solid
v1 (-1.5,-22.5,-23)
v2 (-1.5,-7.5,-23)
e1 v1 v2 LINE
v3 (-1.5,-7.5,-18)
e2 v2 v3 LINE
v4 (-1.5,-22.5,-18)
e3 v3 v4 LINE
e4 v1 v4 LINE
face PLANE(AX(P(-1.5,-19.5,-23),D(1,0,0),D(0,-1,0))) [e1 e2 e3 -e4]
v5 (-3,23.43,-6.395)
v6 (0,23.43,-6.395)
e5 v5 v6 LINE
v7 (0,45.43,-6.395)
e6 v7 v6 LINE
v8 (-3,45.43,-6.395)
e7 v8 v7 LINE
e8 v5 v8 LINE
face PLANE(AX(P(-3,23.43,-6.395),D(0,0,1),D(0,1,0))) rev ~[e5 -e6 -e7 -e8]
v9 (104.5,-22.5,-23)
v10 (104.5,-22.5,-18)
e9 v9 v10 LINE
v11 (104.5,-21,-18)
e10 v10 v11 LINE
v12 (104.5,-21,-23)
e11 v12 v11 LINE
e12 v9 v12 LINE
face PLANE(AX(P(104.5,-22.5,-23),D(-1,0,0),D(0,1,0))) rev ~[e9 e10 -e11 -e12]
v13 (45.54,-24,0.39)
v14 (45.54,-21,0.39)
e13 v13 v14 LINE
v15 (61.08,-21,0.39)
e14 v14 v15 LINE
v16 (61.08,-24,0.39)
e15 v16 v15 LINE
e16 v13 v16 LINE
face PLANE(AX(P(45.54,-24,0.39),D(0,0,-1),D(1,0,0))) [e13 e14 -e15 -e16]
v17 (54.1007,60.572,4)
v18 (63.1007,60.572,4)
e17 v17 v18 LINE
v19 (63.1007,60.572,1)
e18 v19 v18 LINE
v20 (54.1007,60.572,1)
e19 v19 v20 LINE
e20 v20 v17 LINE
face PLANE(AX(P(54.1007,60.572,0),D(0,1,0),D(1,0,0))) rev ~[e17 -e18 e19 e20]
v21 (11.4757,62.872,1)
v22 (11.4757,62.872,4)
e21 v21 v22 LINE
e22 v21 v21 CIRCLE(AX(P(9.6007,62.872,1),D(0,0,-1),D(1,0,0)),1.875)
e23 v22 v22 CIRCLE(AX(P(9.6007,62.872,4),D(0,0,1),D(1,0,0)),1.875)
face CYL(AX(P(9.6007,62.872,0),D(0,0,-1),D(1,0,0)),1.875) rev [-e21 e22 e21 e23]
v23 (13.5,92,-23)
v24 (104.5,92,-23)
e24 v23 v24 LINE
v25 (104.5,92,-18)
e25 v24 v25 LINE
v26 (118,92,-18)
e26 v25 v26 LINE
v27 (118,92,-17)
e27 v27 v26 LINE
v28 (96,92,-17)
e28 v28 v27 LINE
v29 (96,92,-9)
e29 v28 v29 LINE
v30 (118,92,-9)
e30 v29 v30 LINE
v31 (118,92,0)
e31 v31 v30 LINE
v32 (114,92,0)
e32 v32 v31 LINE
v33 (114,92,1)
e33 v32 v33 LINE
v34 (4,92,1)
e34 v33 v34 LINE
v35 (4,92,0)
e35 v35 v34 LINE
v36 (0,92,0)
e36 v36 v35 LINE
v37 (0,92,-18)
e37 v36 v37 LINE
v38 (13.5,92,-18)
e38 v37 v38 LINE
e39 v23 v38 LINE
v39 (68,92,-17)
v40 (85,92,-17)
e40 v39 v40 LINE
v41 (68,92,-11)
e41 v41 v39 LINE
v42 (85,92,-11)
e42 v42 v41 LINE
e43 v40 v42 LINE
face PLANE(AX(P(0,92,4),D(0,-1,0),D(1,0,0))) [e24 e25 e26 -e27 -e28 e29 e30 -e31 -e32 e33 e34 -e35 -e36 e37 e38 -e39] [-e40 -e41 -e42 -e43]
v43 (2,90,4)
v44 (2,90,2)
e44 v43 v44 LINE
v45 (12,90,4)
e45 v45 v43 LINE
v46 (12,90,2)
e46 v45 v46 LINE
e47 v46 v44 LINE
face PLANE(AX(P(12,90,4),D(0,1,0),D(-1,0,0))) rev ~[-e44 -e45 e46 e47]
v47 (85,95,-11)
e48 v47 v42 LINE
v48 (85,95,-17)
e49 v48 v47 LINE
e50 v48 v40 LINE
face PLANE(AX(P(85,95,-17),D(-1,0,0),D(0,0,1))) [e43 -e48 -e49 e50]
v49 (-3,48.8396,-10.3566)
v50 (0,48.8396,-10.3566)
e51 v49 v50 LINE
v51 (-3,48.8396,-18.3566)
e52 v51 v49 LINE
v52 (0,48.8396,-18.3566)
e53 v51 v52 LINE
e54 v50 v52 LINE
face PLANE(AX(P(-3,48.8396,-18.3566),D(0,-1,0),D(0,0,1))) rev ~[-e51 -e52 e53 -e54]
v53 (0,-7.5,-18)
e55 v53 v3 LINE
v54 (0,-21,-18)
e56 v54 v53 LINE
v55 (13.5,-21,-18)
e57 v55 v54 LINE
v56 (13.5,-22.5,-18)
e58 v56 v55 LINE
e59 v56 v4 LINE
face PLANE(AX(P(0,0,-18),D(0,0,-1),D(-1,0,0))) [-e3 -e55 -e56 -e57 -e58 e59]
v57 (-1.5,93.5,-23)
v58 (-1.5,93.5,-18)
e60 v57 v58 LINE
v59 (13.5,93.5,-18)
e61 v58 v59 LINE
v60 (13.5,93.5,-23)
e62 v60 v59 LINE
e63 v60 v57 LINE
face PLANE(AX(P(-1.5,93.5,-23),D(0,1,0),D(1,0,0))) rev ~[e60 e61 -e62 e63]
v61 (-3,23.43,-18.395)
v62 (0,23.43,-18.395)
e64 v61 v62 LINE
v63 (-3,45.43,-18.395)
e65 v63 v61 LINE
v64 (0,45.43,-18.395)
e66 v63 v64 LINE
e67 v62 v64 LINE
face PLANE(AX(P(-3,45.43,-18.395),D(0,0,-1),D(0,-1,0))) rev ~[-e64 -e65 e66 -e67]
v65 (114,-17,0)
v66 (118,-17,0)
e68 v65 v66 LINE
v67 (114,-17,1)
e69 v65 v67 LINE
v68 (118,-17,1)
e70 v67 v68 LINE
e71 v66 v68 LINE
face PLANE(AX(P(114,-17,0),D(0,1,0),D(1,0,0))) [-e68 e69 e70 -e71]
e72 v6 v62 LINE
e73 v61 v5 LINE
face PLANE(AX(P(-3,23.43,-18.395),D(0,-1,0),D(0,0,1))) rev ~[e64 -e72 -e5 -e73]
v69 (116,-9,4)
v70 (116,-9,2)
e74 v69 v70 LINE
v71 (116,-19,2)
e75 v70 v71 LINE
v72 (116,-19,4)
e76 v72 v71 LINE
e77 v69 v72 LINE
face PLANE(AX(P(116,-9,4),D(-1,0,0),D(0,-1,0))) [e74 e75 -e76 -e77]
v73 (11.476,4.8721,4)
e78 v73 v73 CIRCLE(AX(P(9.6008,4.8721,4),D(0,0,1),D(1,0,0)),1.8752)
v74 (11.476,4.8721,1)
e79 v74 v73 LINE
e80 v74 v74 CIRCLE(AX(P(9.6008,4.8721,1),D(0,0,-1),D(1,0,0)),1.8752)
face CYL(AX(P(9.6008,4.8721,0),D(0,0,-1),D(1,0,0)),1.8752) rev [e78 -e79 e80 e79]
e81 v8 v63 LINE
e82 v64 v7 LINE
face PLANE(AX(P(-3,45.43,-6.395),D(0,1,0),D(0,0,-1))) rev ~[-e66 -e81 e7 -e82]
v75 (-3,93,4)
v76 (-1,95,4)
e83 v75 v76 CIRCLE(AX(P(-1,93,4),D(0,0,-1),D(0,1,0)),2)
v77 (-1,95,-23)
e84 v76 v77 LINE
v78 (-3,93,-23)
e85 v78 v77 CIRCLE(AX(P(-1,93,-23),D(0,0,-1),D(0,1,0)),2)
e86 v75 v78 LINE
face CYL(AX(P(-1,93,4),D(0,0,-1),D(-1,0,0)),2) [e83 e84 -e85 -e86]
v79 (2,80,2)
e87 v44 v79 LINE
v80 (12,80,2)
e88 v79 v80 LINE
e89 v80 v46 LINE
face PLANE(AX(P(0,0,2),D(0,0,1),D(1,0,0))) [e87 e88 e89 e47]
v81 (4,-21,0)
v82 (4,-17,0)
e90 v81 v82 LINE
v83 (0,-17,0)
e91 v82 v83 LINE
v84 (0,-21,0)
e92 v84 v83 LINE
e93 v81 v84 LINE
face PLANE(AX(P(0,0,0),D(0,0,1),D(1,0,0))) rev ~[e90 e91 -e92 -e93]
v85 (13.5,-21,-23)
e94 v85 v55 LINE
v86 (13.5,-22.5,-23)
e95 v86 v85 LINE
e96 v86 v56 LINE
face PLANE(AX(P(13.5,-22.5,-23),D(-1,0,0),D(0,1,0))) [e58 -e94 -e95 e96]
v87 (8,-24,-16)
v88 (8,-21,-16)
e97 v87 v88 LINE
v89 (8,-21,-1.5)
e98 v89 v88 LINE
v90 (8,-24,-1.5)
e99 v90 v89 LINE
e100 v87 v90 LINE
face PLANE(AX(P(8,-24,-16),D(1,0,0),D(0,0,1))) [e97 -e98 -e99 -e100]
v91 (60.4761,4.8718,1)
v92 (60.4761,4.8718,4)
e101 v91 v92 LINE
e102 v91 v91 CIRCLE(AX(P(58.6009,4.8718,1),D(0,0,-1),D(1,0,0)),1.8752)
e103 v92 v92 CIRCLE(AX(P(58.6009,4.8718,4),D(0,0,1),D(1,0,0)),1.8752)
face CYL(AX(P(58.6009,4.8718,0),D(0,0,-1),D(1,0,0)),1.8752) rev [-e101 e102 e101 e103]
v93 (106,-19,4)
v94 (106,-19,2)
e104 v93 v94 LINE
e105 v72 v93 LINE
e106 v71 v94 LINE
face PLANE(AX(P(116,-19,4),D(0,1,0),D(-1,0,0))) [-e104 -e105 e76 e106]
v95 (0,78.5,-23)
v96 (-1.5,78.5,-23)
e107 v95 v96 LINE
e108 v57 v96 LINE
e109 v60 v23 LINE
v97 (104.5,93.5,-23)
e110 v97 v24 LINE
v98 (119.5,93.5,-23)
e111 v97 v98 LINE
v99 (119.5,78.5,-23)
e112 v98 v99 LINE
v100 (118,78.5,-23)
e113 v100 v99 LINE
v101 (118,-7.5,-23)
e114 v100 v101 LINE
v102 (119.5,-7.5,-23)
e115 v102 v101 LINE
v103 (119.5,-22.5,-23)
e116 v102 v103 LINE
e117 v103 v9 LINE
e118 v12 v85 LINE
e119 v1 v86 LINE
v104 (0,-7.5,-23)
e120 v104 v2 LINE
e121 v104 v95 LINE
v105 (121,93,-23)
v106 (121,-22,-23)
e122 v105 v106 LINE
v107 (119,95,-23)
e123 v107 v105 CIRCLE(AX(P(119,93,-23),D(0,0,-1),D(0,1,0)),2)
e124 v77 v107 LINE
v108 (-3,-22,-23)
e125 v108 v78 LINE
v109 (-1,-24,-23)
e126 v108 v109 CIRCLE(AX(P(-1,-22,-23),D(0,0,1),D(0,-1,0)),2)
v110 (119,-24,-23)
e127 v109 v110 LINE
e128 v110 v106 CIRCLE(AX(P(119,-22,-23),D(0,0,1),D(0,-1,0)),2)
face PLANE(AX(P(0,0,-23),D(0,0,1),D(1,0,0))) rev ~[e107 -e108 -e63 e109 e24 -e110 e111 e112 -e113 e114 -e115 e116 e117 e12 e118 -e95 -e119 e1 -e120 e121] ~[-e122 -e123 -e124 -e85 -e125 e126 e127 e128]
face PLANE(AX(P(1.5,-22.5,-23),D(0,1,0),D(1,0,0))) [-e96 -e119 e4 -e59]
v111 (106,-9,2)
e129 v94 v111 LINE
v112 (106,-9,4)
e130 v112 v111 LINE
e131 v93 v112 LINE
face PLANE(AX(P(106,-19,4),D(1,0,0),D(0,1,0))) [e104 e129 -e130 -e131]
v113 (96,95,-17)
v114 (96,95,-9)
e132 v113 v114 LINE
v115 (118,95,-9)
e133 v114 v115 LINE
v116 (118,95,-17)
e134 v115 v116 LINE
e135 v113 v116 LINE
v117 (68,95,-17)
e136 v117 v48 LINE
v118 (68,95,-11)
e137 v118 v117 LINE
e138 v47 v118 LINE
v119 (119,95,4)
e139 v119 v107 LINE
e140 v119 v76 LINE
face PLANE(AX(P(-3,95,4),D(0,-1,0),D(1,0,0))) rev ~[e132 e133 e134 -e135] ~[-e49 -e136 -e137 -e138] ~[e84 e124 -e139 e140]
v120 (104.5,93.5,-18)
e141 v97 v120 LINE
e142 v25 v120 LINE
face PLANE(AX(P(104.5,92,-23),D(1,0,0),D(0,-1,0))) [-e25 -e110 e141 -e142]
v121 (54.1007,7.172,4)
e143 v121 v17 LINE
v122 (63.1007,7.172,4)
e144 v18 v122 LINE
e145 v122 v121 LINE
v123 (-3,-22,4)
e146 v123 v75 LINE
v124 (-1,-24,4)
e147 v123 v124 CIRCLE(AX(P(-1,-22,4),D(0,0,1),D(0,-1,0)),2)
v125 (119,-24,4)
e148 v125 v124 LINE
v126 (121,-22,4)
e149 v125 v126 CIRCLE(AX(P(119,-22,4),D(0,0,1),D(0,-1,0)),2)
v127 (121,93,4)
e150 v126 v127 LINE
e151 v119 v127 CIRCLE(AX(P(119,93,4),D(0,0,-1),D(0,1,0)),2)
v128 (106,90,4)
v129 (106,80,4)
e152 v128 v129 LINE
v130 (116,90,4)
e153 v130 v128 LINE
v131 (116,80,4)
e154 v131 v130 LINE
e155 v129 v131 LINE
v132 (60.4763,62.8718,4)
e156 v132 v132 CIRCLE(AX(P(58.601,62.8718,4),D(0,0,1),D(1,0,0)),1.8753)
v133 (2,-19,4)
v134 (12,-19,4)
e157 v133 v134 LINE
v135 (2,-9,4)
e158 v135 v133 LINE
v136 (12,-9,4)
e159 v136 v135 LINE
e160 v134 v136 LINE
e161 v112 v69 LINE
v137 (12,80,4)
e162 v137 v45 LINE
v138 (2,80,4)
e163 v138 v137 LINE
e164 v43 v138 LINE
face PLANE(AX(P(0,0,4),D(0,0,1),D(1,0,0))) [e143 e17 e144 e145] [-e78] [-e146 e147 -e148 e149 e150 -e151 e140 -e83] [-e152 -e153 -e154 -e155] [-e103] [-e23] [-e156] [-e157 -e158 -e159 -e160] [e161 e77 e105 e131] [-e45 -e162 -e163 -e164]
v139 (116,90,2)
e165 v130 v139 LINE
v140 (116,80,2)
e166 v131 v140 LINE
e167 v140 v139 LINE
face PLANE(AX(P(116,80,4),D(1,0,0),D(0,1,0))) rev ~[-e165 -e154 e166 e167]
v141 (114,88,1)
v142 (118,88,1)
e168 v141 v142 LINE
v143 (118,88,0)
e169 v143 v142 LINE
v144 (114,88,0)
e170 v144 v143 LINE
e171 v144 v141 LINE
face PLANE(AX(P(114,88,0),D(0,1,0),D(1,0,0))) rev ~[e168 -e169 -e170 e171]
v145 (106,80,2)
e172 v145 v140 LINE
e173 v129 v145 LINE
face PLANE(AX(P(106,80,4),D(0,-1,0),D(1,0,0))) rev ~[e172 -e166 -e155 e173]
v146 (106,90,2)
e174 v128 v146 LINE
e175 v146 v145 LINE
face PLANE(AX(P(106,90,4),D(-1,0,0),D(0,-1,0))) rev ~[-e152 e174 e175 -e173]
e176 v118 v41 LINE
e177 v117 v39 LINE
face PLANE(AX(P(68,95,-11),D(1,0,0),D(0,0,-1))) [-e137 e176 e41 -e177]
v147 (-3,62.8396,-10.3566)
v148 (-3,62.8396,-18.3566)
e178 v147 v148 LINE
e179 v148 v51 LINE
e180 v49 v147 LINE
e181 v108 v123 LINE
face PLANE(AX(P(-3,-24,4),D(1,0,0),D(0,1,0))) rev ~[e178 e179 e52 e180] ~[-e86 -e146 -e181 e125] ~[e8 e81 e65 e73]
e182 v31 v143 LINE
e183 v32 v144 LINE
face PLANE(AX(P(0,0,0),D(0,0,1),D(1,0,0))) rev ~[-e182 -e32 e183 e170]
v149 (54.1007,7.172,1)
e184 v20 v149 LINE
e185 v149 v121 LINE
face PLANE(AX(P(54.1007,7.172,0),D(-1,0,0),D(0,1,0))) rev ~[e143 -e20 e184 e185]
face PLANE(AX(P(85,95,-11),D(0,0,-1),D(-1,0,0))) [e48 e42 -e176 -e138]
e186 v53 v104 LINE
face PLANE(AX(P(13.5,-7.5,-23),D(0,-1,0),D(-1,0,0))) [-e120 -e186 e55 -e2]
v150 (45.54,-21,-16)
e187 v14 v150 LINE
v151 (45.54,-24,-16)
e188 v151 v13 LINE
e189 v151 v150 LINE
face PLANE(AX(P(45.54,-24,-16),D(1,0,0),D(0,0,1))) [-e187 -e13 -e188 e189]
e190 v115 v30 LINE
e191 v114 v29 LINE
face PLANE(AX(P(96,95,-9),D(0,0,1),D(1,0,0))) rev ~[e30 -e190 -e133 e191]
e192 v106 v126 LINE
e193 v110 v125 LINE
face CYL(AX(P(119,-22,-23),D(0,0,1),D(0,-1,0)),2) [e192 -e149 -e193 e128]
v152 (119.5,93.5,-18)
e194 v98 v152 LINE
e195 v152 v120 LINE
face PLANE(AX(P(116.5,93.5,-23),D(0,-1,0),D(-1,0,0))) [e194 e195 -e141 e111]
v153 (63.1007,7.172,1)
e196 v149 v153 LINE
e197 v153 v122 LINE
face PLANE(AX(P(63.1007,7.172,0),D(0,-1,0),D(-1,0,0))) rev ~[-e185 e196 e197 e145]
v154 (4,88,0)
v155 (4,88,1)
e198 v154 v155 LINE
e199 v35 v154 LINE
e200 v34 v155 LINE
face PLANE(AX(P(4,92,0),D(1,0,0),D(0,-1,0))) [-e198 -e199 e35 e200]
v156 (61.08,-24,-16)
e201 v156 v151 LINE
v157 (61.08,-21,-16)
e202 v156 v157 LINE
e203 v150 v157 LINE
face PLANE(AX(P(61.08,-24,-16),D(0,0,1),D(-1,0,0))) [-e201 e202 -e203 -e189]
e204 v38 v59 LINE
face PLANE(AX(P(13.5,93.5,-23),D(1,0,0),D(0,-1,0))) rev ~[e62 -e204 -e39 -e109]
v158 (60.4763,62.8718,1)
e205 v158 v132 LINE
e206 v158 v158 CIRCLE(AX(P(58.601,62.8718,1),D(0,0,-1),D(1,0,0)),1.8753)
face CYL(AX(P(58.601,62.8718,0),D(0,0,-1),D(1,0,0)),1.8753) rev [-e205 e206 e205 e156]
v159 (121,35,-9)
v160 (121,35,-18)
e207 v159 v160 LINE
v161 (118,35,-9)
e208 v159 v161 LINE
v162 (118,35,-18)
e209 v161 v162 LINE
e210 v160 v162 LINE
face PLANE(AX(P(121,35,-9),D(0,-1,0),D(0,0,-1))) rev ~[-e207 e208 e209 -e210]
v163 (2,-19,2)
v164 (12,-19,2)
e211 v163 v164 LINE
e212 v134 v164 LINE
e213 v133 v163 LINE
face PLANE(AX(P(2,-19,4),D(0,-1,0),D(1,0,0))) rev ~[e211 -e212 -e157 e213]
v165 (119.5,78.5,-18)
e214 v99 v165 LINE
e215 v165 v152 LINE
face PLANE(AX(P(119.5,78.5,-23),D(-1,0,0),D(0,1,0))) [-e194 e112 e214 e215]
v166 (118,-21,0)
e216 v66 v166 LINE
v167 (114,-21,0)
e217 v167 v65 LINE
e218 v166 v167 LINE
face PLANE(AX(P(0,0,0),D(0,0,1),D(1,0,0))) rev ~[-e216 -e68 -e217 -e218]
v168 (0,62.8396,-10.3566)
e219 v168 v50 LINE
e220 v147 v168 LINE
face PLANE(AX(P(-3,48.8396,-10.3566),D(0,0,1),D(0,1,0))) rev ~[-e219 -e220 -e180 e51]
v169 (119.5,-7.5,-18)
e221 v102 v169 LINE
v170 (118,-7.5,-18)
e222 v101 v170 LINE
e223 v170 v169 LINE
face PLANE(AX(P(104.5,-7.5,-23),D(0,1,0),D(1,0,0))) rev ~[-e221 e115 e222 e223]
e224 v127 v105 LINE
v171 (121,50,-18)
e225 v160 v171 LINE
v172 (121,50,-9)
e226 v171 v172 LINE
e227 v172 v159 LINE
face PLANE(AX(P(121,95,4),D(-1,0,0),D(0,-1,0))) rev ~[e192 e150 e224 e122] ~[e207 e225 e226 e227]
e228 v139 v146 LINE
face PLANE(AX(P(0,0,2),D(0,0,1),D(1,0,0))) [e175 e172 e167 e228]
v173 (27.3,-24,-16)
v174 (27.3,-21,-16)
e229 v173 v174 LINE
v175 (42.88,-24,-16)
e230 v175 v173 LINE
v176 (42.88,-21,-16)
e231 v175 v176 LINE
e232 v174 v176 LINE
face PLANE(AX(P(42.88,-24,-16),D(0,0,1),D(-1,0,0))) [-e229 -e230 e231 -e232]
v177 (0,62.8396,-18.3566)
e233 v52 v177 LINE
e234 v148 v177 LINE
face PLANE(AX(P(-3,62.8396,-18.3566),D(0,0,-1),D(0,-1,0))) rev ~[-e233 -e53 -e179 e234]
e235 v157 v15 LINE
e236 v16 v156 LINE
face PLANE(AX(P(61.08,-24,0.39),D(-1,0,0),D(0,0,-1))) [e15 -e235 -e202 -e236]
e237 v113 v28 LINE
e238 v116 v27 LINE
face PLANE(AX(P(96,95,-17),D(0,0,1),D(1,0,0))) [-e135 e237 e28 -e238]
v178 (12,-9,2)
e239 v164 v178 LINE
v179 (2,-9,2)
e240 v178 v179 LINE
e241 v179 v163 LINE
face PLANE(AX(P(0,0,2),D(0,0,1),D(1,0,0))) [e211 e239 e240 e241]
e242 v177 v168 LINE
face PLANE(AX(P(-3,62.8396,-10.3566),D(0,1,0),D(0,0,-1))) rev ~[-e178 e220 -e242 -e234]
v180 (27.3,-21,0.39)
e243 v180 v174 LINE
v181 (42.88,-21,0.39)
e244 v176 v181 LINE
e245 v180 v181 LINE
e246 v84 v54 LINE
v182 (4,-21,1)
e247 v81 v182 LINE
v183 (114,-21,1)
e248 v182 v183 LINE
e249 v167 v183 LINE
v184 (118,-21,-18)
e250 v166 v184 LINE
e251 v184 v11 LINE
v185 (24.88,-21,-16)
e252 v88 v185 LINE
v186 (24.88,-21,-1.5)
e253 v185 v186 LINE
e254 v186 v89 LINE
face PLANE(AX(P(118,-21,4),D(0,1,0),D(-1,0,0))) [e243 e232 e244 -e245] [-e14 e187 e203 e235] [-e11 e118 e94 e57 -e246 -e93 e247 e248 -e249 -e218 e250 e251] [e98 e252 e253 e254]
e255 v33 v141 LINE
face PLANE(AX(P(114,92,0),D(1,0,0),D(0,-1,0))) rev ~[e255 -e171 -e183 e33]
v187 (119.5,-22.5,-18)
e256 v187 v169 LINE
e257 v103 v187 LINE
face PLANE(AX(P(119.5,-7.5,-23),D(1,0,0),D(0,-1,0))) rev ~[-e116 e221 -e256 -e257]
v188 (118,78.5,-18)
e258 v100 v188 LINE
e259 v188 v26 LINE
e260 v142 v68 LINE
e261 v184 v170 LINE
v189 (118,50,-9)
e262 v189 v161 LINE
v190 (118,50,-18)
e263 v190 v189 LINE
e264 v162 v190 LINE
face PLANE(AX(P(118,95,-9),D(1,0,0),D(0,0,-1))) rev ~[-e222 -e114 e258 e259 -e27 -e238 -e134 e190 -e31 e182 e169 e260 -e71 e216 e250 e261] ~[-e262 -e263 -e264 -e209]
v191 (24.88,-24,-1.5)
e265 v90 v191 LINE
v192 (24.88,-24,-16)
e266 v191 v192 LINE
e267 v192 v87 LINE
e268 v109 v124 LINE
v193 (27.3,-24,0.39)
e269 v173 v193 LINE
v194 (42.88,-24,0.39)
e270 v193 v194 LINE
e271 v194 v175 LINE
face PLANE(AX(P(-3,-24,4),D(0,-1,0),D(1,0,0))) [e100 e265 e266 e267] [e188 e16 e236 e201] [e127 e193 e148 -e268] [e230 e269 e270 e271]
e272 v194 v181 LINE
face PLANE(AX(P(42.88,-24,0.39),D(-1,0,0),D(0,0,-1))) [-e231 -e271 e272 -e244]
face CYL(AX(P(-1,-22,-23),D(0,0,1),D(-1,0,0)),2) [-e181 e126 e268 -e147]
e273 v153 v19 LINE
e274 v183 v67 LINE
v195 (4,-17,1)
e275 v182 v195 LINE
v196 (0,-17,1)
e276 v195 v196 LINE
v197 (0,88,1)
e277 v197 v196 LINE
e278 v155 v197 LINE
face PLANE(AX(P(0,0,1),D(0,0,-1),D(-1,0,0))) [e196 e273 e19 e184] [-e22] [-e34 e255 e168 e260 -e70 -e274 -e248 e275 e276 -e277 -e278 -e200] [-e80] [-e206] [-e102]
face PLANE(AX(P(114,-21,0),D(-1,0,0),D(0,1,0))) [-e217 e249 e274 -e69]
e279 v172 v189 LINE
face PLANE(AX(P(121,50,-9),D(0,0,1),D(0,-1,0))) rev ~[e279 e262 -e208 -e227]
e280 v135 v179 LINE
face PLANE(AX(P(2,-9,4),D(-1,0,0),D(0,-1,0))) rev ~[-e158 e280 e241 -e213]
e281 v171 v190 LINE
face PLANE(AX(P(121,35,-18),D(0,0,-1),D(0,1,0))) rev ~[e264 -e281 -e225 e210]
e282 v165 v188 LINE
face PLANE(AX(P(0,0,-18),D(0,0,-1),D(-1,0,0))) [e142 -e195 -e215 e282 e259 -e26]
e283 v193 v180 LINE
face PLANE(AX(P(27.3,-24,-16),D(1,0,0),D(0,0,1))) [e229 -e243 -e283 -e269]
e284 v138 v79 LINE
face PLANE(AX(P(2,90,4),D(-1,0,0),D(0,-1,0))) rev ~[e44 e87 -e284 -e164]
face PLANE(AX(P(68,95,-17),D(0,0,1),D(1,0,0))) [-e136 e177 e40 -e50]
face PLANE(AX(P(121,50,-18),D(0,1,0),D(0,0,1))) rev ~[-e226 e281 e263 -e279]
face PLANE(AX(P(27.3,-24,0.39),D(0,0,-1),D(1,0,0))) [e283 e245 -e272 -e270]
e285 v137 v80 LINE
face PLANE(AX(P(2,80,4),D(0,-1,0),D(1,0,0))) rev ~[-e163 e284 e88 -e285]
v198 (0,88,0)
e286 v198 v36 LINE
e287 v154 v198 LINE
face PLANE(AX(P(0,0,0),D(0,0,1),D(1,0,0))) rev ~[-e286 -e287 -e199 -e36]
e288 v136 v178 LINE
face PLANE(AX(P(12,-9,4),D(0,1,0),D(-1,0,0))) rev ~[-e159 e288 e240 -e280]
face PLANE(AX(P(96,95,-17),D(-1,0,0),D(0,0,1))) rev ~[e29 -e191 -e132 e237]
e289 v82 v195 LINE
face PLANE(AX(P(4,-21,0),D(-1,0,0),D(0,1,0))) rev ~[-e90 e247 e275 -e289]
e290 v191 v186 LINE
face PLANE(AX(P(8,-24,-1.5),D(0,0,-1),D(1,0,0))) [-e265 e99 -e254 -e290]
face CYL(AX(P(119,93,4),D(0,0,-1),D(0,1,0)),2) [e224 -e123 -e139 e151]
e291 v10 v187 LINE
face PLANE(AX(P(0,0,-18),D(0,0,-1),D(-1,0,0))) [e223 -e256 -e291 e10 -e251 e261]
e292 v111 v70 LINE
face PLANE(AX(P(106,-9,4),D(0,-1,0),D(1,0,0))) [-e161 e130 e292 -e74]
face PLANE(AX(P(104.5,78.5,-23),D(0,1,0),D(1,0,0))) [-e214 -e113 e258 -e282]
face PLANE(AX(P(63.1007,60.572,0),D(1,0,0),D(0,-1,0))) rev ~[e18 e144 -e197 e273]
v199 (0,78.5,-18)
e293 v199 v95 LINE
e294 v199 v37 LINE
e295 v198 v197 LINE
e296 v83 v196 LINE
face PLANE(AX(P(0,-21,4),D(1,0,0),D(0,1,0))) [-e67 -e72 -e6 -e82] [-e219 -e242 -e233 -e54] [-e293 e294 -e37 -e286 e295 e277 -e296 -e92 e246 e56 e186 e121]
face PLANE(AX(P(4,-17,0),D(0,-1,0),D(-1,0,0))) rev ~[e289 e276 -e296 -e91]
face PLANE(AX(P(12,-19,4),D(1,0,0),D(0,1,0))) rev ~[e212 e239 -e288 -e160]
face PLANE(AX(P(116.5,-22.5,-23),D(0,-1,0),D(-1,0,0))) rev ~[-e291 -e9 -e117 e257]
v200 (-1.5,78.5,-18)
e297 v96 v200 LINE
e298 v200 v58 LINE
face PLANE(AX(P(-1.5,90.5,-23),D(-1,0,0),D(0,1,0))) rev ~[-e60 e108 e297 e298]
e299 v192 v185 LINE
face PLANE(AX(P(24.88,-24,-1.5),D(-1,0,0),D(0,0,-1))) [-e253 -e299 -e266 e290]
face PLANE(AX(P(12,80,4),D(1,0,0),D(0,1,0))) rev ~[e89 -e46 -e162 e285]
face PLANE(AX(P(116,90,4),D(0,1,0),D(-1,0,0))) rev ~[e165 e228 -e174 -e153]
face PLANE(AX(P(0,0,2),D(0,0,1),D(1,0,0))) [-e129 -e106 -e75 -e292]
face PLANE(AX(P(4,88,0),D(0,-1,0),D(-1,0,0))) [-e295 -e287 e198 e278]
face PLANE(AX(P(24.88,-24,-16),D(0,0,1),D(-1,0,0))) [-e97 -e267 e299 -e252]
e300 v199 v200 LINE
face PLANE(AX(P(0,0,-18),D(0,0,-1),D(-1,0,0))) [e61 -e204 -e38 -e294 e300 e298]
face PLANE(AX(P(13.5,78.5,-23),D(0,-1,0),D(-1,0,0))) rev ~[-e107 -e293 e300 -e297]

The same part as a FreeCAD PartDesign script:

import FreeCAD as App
import Part
import Sketcher


def edges_at(feature, points):
    """Names of the edges that pass closest to the given points."""
    edges = feature.Shape.Edges
    near = lambda p: min(range(len(edges)), key=lambda i: edges[i].distToShape(Part.Vertex(*p))[0])
    return sorted({f"Edge{near(p) + 1}" for p in points})


def add_polygon(sketch, points):
    """Adds a closed chain of lines whose ends are joined by coincident constraints."""
    first, n = sketch.GeometryCount, len(points)
    for a, b in zip(points, points[1:] + points[:1]):
        sketch.addGeometry(Part.LineSegment(App.Vector(*a, 0), App.Vector(*b, 0)), False)
    for i in range(n):
        sketch.addConstraint(Sketcher.Constraint("Coincident", first + i, 2, first + (i + 1) % n, 1))

doc = App.newDocument("Part")
body = doc.addObject("PartDesign::Body", "Body")

# Sketch on XY plane
sketch1 = body.newObject("Sketcher::SketchObject", "Sketch")
sketch1.AttachmentSupport = (doc.getObject("XY_Plane"), [""])
sketch1.MapMode = "FlatFace"
add_polygon(sketch1, [(-3, -24), (121, -24), (121, 95), (-3, 95)])  # lines 0-3
sketch1.addGeometry(Part.Circle(App.Vector(58.601, 62.8718, 0), App.Vector(0, 0, 1), 1.8753), False)  # 4
add_polygon(sketch1, [(54.1007, 60.572), (63.1007, 60.572), (63.1007, 7.172), (54.1007, 7.172)])  # lines 5-8
sketch1.addGeometry(Part.Circle(App.Vector(9.6007, 62.872, 0), App.Vector(0, 0, 1), 1.875), False)  # 9
sketch1.addGeometry(Part.Circle(App.Vector(9.6008, 4.8721, 0), App.Vector(0, 0, 1), 1.8752), False)  # 10
sketch1.addGeometry(Part.Circle(App.Vector(58.6009, 4.8718, 0), App.Vector(0, 0, 1), 1.8752), False)  # 11
sketch1.addConstraint(Sketcher.Constraint("Horizontal", 0))
sketch1.addConstraint(Sketcher.Constraint("Vertical", 1))
sketch1.addConstraint(Sketcher.Constraint("Horizontal", 2))
sketch1.addConstraint(Sketcher.Constraint("Vertical", 3))
sketch1.addConstraint(Sketcher.Constraint("Horizontal", 5))
sketch1.addConstraint(Sketcher.Constraint("Vertical", 6))
sketch1.addConstraint(Sketcher.Constraint("Horizontal", 7))
sketch1.addConstraint(Sketcher.Constraint("Vertical", 8))
sketch1.addConstraint(Sketcher.Constraint("Equal", 9, 10))
sketch1.addConstraint(Sketcher.Constraint("Equal", 10, 11))
sketch1.addConstraint(Sketcher.Constraint("Horizontal", 4, 3, 9, 3))
sketch1.addConstraint(Sketcher.Constraint("Vertical", 9, 3, 10, 3))
sketch1.addConstraint(Sketcher.Constraint("Vertical", 4, 3, 11, 3))
sketch1.addConstraint(Sketcher.Constraint("DistanceX", 2, 2, -1, 1, 3.0))
sketch1.addConstraint(Sketcher.Constraint("Diameter", 9, 3.75))
sketch1.addConstraint(Sketcher.Constraint("DistanceX", 0, 1, 0, 2, 124.0))
sketch1.addConstraint(Sketcher.Constraint("DistanceX", 5, 1, 5, 2, 9.0))
sketch1.addConstraint(Sketcher.Constraint("DistanceY", 1, 1, 1, 2, 119.0))
sketch1.addConstraint(Sketcher.Constraint("DistanceY", 6, 2, 6, 1, 53.4))
sketch1.addConstraint(Sketcher.Constraint("DistanceY", 0, 2, -1, 1, 24.0))
sketch1.addConstraint(Sketcher.Constraint("DistanceY", 10, 3, 9, 3, 58.0))
sketch1.addConstraint(Sketcher.Constraint("DistanceX", 10, 3, 11, 3, 49.0))
sketch1.addConstraint(Sketcher.Constraint("DistanceY", 11, 3, 4, 3, 58.0))
sketch1.addConstraint(Sketcher.Constraint("Diameter", 4, 3.7506))
sketch1.addConstraint(Sketcher.Constraint("DistanceX", 9, 3, 5, 2, 53.5))
sketch1.addConstraint(Sketcher.Constraint("DistanceY", 5, 2, 9, 3, 2.3))
sketch1.addConstraint(Sketcher.Constraint("DistanceX", -1, 1, 4, 3, 58.601))
sketch1.addConstraint(Sketcher.Constraint("DistanceY", -1, 1, 9, 3, 62.872))
pad1 = body.newObject("PartDesign::Pad", "Pad")
pad1.Profile = sketch1
pad1.Length = 4

# Sketch on XY plane
sketch2 = body.newObject("Sketcher::SketchObject", "Sketch001")
sketch2.AttachmentSupport = (doc.getObject("XY_Plane"), [""])
sketch2.MapMode = "FlatFace"
sketch2.AttachmentOffset = App.Placement(App.Vector(0, 0, 4), App.Rotation())
add_polygon(sketch2, [(-3, 95), (-3, -24), (121, -24), (121, 95)])  # lines 0-3
add_polygon(sketch2, [(0, -21), (0, 92), (118, 92), (118, -21)])  # lines 4-7
sketch2.addConstraint(Sketcher.Constraint("Vertical", 0))
sketch2.addConstraint(Sketcher.Constraint("Horizontal", 1))
sketch2.addConstraint(Sketcher.Constraint("Vertical", 2))
sketch2.addConstraint(Sketcher.Constraint("Horizontal", 3))
sketch2.addConstraint(Sketcher.Constraint("Vertical", 4))
sketch2.addConstraint(Sketcher.Constraint("Horizontal", 5))
sketch2.addConstraint(Sketcher.Constraint("Vertical", 6))
sketch2.addConstraint(Sketcher.Constraint("Horizontal", 7))
sketch2.addConstraint(Sketcher.Constraint("PointOnObject", 4, 2, -2))
sketch2.addConstraint(Sketcher.Constraint("DistanceX", 0, 2, -1, 1, 3.0))
sketch2.addConstraint(Sketcher.Constraint("DistanceY", 4, 2, 3, 2, 3.0))
sketch2.addConstraint(Sketcher.Constraint("DistanceX", 5, 2, 2, 2, 3.0))
sketch2.addConstraint(Sketcher.Constraint("DistanceY", 1, 2, 6, 2, 3.0))
sketch2.addConstraint(Sketcher.Constraint("DistanceX", 1, 1, 1, 2, 124.0))
sketch2.addConstraint(Sketcher.Constraint("DistanceY", 0, 2, 0, 1, 119.0))
sketch2.addConstraint(Sketcher.Constraint("DistanceY", 0, 2, -1, 1, 24.0))
pad2 = body.newObject("PartDesign::Pad", "Pad001")
pad2.Profile = sketch2
pad2.Length = 27
pad2.Reversed = True

# Sketch on XZ plane
sketch3 = body.newObject("Sketcher::SketchObject", "Sketch002")
sketch3.AttachmentSupport = (doc.getObject("XZ_Plane"), [""])
sketch3.MapMode = "FlatFace"
sketch3.AttachmentOffset = App.Placement(App.Vector(0, 0, 24), App.Rotation())
add_polygon(sketch3, [(45.54, -16), (61.08, -16), (61.08, 0.39), (45.54, 0.39)])  # lines 0-3
add_polygon(sketch3, [(27.3, -16), (42.88, -16), (42.88, 0.39), (27.3, 0.39)])  # lines 4-7
add_polygon(sketch3, [(8, -16), (24.88, -16), (24.88, -1.5), (8, -1.5)])  # lines 8-11
sketch3.addConstraint(Sketcher.Constraint("Horizontal", 0))
sketch3.addConstraint(Sketcher.Constraint("Vertical", 1))
sketch3.addConstraint(Sketcher.Constraint("Horizontal", 2))
sketch3.addConstraint(Sketcher.Constraint("Vertical", 3))
sketch3.addConstraint(Sketcher.Constraint("Horizontal", 4))
sketch3.addConstraint(Sketcher.Constraint("Vertical", 5))
sketch3.addConstraint(Sketcher.Constraint("Horizontal", 6))
sketch3.addConstraint(Sketcher.Constraint("Vertical", 7))
sketch3.addConstraint(Sketcher.Constraint("Horizontal", 8))
sketch3.addConstraint(Sketcher.Constraint("Vertical", 9))
sketch3.addConstraint(Sketcher.Constraint("Horizontal", 10))
sketch3.addConstraint(Sketcher.Constraint("Vertical", 11))
sketch3.addConstraint(Sketcher.Constraint("Horizontal", 3, 2, 4, 2))
sketch3.addConstraint(Sketcher.Constraint("Horizontal", 2, 2, 5, 2))
sketch3.addConstraint(Sketcher.Constraint("Horizontal", 7, 2, 8, 2))
sketch3.addConstraint(Sketcher.Constraint("DistanceY", 9, 1, 9, 2, 14.5))
sketch3.addConstraint(Sketcher.Constraint("DistanceY", 0, 2, -1, 1, 16.0))
sketch3.addConstraint(Sketcher.Constraint("DistanceX", -1, 1, 10, 2, 8.0))
sketch3.addConstraint(Sketcher.Constraint("DistanceX", 8, 2, 4, 2, 18.0))
sketch3.addConstraint(Sketcher.Constraint("DistanceX", 0, 1, 0, 2, 15.54))
sketch3.addConstraint(Sketcher.Constraint("DistanceX", 4, 1, 4, 2, 15.58))
sketch3.addConstraint(Sketcher.Constraint("DistanceX", 8, 1, 8, 2, 16.88))
sketch3.addConstraint(Sketcher.Constraint("DistanceY", 1, 1, 1, 2, 16.39))
sketch3.addConstraint(Sketcher.Constraint("DistanceX", 4, 2, 0, 2, 18.2))
pocket1 = body.newObject("PartDesign::Pocket", "Pocket")
pocket1.Profile = sketch3
pocket1.Length = 27

# Sketch on YZ plane
sketch4 = body.newObject("Sketcher::SketchObject", "Sketch003")
sketch4.AttachmentSupport = (doc.getObject("YZ_Plane"), [""])
sketch4.MapMode = "FlatFace"
sketch4.AttachmentOffset = App.Placement(App.Vector(0, 0, -3), App.Rotation())
add_polygon(sketch4, [(45.43, -18.395), (23.43, -18.395), (23.43, -6.395), (45.43, -6.395)])  # lines 0-3
add_polygon(sketch4, [(62.8396, -18.3566), (48.8396, -18.3566), (48.8396, -10.3566), (62.8396, -10.3566)])  # lines 4-7
sketch4.addConstraint(Sketcher.Constraint("Horizontal", 0))
sketch4.addConstraint(Sketcher.Constraint("Vertical", 1))
sketch4.addConstraint(Sketcher.Constraint("Horizontal", 2))
sketch4.addConstraint(Sketcher.Constraint("Vertical", 3))
sketch4.addConstraint(Sketcher.Constraint("Horizontal", 4))
sketch4.addConstraint(Sketcher.Constraint("Vertical", 5))
sketch4.addConstraint(Sketcher.Constraint("Horizontal", 6))
sketch4.addConstraint(Sketcher.Constraint("Vertical", 7))
sketch4.addConstraint(Sketcher.Constraint("DistanceX", 0, 2, 0, 1, 22.0))
sketch4.addConstraint(Sketcher.Constraint("DistanceX", 4, 2, 4, 1, 14.0))
sketch4.addConstraint(Sketcher.Constraint("DistanceY", 1, 1, 1, 2, 12.0))
sketch4.addConstraint(Sketcher.Constraint("DistanceY", 5, 1, 5, 2, 8.0))
sketch4.addConstraint(Sketcher.Constraint("DistanceX", -1, 1, 0, 2, 23.43))
sketch4.addConstraint(Sketcher.Constraint("DistanceY", 0, 2, -1, 1, 18.395))
sketch4.addConstraint(Sketcher.Constraint("DistanceX", -1, 1, 4, 2, 48.8396))
sketch4.addConstraint(Sketcher.Constraint("DistanceY", 4, 2, -1, 1, 18.3566))
pocket2 = body.newObject("PartDesign::Pocket", "Pocket001")
pocket2.Profile = sketch4
pocket2.Length = 27
pocket2.Reversed = True

# Sketch on XZ plane
sketch5 = body.newObject("Sketcher::SketchObject", "Sketch004")
sketch5.AttachmentSupport = (doc.getObject("XZ_Plane"), [""])
sketch5.MapMode = "FlatFace"
sketch5.AttachmentOffset = App.Placement(App.Vector(0, 0, -95), App.Rotation())
add_polygon(sketch5, [(96, -9), (118, -9), (118, -17), (96, -17)])  # lines 0-3
add_polygon(sketch5, [(68, -17), (68, -11), (85, -11), (85, -17)])  # lines 4-7
sketch5.addConstraint(Sketcher.Constraint("Horizontal", 0))
sketch5.addConstraint(Sketcher.Constraint("Vertical", 1))
sketch5.addConstraint(Sketcher.Constraint("Horizontal", 2))
sketch5.addConstraint(Sketcher.Constraint("Vertical", 3))
sketch5.addConstraint(Sketcher.Constraint("Vertical", 4))
sketch5.addConstraint(Sketcher.Constraint("Horizontal", 5))
sketch5.addConstraint(Sketcher.Constraint("Vertical", 6))
sketch5.addConstraint(Sketcher.Constraint("Horizontal", 7))
sketch5.addConstraint(Sketcher.Constraint("Horizontal", 2, 2, 6, 2))
sketch5.addConstraint(Sketcher.Constraint("DistanceX", 0, 1, 0, 2, 22.0))
sketch5.addConstraint(Sketcher.Constraint("DistanceX", 5, 1, 5, 2, 17.0))
sketch5.addConstraint(Sketcher.Constraint("DistanceY", 1, 2, 1, 1, 8.0))
sketch5.addConstraint(Sketcher.Constraint("DistanceY", 4, 1, 4, 2, 6.0))
sketch5.addConstraint(Sketcher.Constraint("DistanceY", 1, 2, -1, 1, 17.0))
sketch5.addConstraint(Sketcher.Constraint("DistanceX", 4, 2, 0, 2, 50.0))
sketch5.addConstraint(Sketcher.Constraint("DistanceX", -1, 1, 0, 2, 118.0))
pocket3 = body.newObject("PartDesign::Pocket", "Pocket002")
pocket3.Profile = sketch5
pocket3.Length = 3
pocket3.Reversed = True

# Sketch on YZ plane
sketch6 = body.newObject("Sketcher::SketchObject", "Sketch005")
sketch6.AttachmentSupport = (doc.getObject("YZ_Plane"), [""])
sketch6.MapMode = "FlatFace"
sketch6.AttachmentOffset = App.Placement(App.Vector(0, 0, 121), App.Rotation())
add_polygon(sketch6, [(35, -18), (50, -18), (50, -9), (35, -9)])  # lines 0-3
sketch6.addConstraint(Sketcher.Constraint("Horizontal", 0))
sketch6.addConstraint(Sketcher.Constraint("Vertical", 1))
sketch6.addConstraint(Sketcher.Constraint("Horizontal", 2))
sketch6.addConstraint(Sketcher.Constraint("Vertical", 3))
sketch6.addConstraint(Sketcher.Constraint("DistanceY", 1, 1, 1, 2, 9.0))
sketch6.addConstraint(Sketcher.Constraint("DistanceY", 1, 2, -1, 1, 9.0))
sketch6.addConstraint(Sketcher.Constraint("DistanceX", 0, 1, 0, 2, 15.0))
sketch6.addConstraint(Sketcher.Constraint("DistanceX", -1, 1, 0, 2, 50.0))
pocket4 = body.newObject("PartDesign::Pocket", "Pocket003")
pocket4.Profile = sketch6
pocket4.Length = 3

# Sketch on XY plane
sketch7 = body.newObject("Sketcher::SketchObject", "Sketch006")
sketch7.AttachmentSupport = (doc.getObject("XY_Plane"), [""])
sketch7.MapMode = "FlatFace"
sketch7.AttachmentOffset = App.Placement(App.Vector(0, 0, -23), App.Rotation())
add_polygon(sketch7, [(-1.5, 93.5), (13.5, 93.5), (13.5, 78.5), (-1.5, 78.5)])  # lines 0-3
add_polygon(sketch7, [(104.5, -7.5), (119.5, -7.5), (119.5, -22.5), (104.5, -22.5)])  # lines 4-7
add_polygon(sketch7, [(104.5, 78.5), (104.5, 93.5), (119.5, 93.5), (119.5, 78.5)])  # lines 8-11
add_polygon(sketch7, [(13.5, -22.5), (-1.5, -22.5), (-1.5, -7.5), (13.5, -7.5)])  # lines 12-15
sketch7.addConstraint(Sketcher.Constraint("Horizontal", 0))
sketch7.addConstraint(Sketcher.Constraint("Vertical", 1))
sketch7.addConstraint(Sketcher.Constraint("Horizontal", 2))
sketch7.addConstraint(Sketcher.Constraint("Vertical", 3))
sketch7.addConstraint(Sketcher.Constraint("Horizontal", 4))
sketch7.addConstraint(Sketcher.Constraint("Vertical", 5))
sketch7.addConstraint(Sketcher.Constraint("Horizontal", 6))
sketch7.addConstraint(Sketcher.Constraint("Vertical", 7))
sketch7.addConstraint(Sketcher.Constraint("Vertical", 8))
sketch7.addConstraint(Sketcher.Constraint("Horizontal", 9))
sketch7.addConstraint(Sketcher.Constraint("Vertical", 10))
sketch7.addConstraint(Sketcher.Constraint("Horizontal", 11))
sketch7.addConstraint(Sketcher.Constraint("Horizontal", 12))
sketch7.addConstraint(Sketcher.Constraint("Vertical", 13))
sketch7.addConstraint(Sketcher.Constraint("Horizontal", 14))
sketch7.addConstraint(Sketcher.Constraint("Vertical", 15))
sketch7.addConstraint(Sketcher.Constraint("Horizontal", 3, 2, 8, 2))
sketch7.addConstraint(Sketcher.Constraint("Horizontal", 2, 2, 10, 2))
sketch7.addConstraint(Sketcher.Constraint("Horizontal", 6, 2, 12, 2))
sketch7.addConstraint(Sketcher.Constraint("Horizontal", 7, 2, 13, 2))
sketch7.addConstraint(Sketcher.Constraint("Vertical", 7, 2, 8, 2))
sketch7.addConstraint(Sketcher.Constraint("Vertical", 5, 2, 9, 2))
sketch7.addConstraint(Sketcher.Constraint("Vertical", 3, 2, 12, 2))
sketch7.addConstraint(Sketcher.Constraint("Vertical", 1, 2, 14, 2))
sketch7.addConstraint(Sketcher.Constraint("Equal", 2, 4))
sketch7.addConstraint(Sketcher.Constraint("Equal", 14, 1))
sketch7.addConstraint(Sketcher.Constraint("Equal", 3, 5))
sketch7.addConstraint(Sketcher.Constraint("DistanceX", 0, 1, 0, 2, 15.0))
sketch7.addConstraint(Sketcher.Constraint("DistanceX", 1, 2, 4, 2, 106.0))
sketch7.addConstraint(Sketcher.Constraint("DistanceY", 4, 2, 1, 2, 86.0))
sketch7.addConstraint(Sketcher.Constraint("DistanceX", -1, 1, 0, 2, 13.5))
sketch7.addConstraint(Sketcher.Constraint("DistanceY", -1, 1, 0, 2, 93.5))
pocket5 = body.newObject("PartDesign::Pocket", "Pocket004")
pocket5.Profile = sketch7
pocket5.Length = 5
pocket5.Reversed = True

# Sketch on XY plane
sketch8 = body.newObject("Sketcher::SketchObject", "Sketch007")
sketch8.AttachmentSupport = (doc.getObject("XY_Plane"), [""])
sketch8.MapMode = "FlatFace"
add_polygon(sketch8, [(4, -17), (0, -17), (0, 88), (4, 88), (4, 92), (114, 92), (114, 88), (118, 88), (118, -17), (114, -17), (114, -21), (4, -21)])  # lines 0-11
sketch8.addConstraint(Sketcher.Constraint("Horizontal", 0))
sketch8.addConstraint(Sketcher.Constraint("Vertical", 1))
sketch8.addConstraint(Sketcher.Constraint("Horizontal", 2))
sketch8.addConstraint(Sketcher.Constraint("Vertical", 3))
sketch8.addConstraint(Sketcher.Constraint("Horizontal", 4))
sketch8.addConstraint(Sketcher.Constraint("Vertical", 5))
sketch8.addConstraint(Sketcher.Constraint("Horizontal", 6))
sketch8.addConstraint(Sketcher.Constraint("Vertical", 7))
sketch8.addConstraint(Sketcher.Constraint("Horizontal", 8))
sketch8.addConstraint(Sketcher.Constraint("Vertical", 9))
sketch8.addConstraint(Sketcher.Constraint("Horizontal", 10))
sketch8.addConstraint(Sketcher.Constraint("Vertical", 11))
sketch8.addConstraint(Sketcher.Constraint("PointOnObject", 0, 2, -2))
sketch8.addConstraint(Sketcher.Constraint("Horizontal", 2, 2, 5, 2))
sketch8.addConstraint(Sketcher.Constraint("Horizontal", 0, 2, 7, 2))
sketch8.addConstraint(Sketcher.Constraint("Vertical", 5, 2, 8, 2))
sketch8.addConstraint(Sketcher.Constraint("Vertical", 3, 2, 10, 2))
sketch8.addConstraint(Sketcher.Constraint("Equal", 2, 6))
sketch8.addConstraint(Sketcher.Constraint("Equal", 8, 3))
sketch8.addConstraint(Sketcher.Constraint("Equal", 5, 9))
sketch8.addConstraint(Sketcher.Constraint("DistanceX", 0, 2, 0, 1, 4.0))
sketch8.addConstraint(Sketcher.Constraint("DistanceX", 4, 1, 4, 2, 110.0))
sketch8.addConstraint(Sketcher.Constraint("DistanceY", 1, 1, 1, 2, 105.0))
sketch8.addConstraint(Sketcher.Constraint("DistanceY", 0, 2, -1, 1, 17.0))
pocket6 = body.newObject("PartDesign::Pocket", "Pocket005")
pocket6.Profile = sketch8
pocket6.Length = 1
pocket6.Reversed = True
doc.recompute()

fillet = body.newObject("PartDesign::Fillet", "Fillet")
fillet.Base = (pocket6, edges_at(pocket6, [
    (-3, -24, -9.5),
    (121, -24, -9.5),
    (-3, 95, -9.5),
    (121, 95, -9.5),
]))
fillet.Radius = 2

# Sketch on XY plane
sketch9 = body.newObject("Sketcher::SketchObject", "Sketch008")
sketch9.AttachmentSupport = (doc.getObject("XY_Plane"), [""])
sketch9.MapMode = "FlatFace"
sketch9.AttachmentOffset = App.Placement(App.Vector(0, 0, 4), App.Rotation())
add_polygon(sketch9, [(106, 90), (106, 80), (116, 80), (116, 90)])  # lines 0-3
add_polygon(sketch9, [(106, -19), (116, -19), (116, -9), (106, -9)])  # lines 4-7
add_polygon(sketch9, [(12, -19), (12, -9), (2, -9), (2, -19)])  # lines 8-11
add_polygon(sketch9, [(12, 80), (12, 90), (2, 90), (2, 80)])  # lines 12-15
sketch9.addConstraint(Sketcher.Constraint("Vertical", 0))
sketch9.addConstraint(Sketcher.Constraint("Horizontal", 1))
sketch9.addConstraint(Sketcher.Constraint("Vertical", 2))
sketch9.addConstraint(Sketcher.Constraint("Horizontal", 3))
sketch9.addConstraint(Sketcher.Constraint("Horizontal", 4))
sketch9.addConstraint(Sketcher.Constraint("Vertical", 5))
sketch9.addConstraint(Sketcher.Constraint("Horizontal", 6))
sketch9.addConstraint(Sketcher.Constraint("Vertical", 7))
sketch9.addConstraint(Sketcher.Constraint("Vertical", 8))
sketch9.addConstraint(Sketcher.Constraint("Horizontal", 9))
sketch9.addConstraint(Sketcher.Constraint("Vertical", 10))
sketch9.addConstraint(Sketcher.Constraint("Horizontal", 11))
sketch9.addConstraint(Sketcher.Constraint("Vertical", 12))
sketch9.addConstraint(Sketcher.Constraint("Horizontal", 13))
sketch9.addConstraint(Sketcher.Constraint("Vertical", 14))
sketch9.addConstraint(Sketcher.Constraint("Horizontal", 15))
sketch9.addConstraint(Sketcher.Constraint("Horizontal", 6, 2, 8, 2))
sketch9.addConstraint(Sketcher.Constraint("Horizontal", 7, 2, 10, 2))
sketch9.addConstraint(Sketcher.Constraint("Horizontal", 3, 2, 12, 2))
sketch9.addConstraint(Sketcher.Constraint("Horizontal", 1, 2, 14, 2))
sketch9.addConstraint(Sketcher.Constraint("Vertical", 2, 2, 4, 2))
sketch9.addConstraint(Sketcher.Constraint("Vertical", 3, 2, 6, 2))
sketch9.addConstraint(Sketcher.Constraint("Vertical", 11, 2, 12, 2))
sketch9.addConstraint(Sketcher.Constraint("Vertical", 10, 2, 13, 2))
sketch9.addConstraint(Sketcher.Constraint("Equal", 6, 9))
sketch9.addConstraint(Sketcher.Constraint("Equal", 15, 0))
sketch9.addConstraint(Sketcher.Constraint("Equal", 2, 5))
sketch9.addConstraint(Sketcher.Constraint("DistanceX", 1, 1, 1, 2, 10.0))
sketch9.addConstraint(Sketcher.Constraint("DistanceX", -1, 1, 0, 2, 106.0))
sketch9.addConstraint(Sketcher.Constraint("DistanceY", -1, 1, 0, 2, 80.0))
sketch9.addConstraint(Sketcher.Constraint("DistanceY", 4, 2, -1, 1, 19.0))
sketch9.addConstraint(Sketcher.Constraint("DistanceX", -1, 1, 8, 2, 12.0))
pocket7 = body.newObject("PartDesign::Pocket", "Pocket006")
pocket7.Profile = sketch9
pocket7.Length = 2

doc.recompute()
